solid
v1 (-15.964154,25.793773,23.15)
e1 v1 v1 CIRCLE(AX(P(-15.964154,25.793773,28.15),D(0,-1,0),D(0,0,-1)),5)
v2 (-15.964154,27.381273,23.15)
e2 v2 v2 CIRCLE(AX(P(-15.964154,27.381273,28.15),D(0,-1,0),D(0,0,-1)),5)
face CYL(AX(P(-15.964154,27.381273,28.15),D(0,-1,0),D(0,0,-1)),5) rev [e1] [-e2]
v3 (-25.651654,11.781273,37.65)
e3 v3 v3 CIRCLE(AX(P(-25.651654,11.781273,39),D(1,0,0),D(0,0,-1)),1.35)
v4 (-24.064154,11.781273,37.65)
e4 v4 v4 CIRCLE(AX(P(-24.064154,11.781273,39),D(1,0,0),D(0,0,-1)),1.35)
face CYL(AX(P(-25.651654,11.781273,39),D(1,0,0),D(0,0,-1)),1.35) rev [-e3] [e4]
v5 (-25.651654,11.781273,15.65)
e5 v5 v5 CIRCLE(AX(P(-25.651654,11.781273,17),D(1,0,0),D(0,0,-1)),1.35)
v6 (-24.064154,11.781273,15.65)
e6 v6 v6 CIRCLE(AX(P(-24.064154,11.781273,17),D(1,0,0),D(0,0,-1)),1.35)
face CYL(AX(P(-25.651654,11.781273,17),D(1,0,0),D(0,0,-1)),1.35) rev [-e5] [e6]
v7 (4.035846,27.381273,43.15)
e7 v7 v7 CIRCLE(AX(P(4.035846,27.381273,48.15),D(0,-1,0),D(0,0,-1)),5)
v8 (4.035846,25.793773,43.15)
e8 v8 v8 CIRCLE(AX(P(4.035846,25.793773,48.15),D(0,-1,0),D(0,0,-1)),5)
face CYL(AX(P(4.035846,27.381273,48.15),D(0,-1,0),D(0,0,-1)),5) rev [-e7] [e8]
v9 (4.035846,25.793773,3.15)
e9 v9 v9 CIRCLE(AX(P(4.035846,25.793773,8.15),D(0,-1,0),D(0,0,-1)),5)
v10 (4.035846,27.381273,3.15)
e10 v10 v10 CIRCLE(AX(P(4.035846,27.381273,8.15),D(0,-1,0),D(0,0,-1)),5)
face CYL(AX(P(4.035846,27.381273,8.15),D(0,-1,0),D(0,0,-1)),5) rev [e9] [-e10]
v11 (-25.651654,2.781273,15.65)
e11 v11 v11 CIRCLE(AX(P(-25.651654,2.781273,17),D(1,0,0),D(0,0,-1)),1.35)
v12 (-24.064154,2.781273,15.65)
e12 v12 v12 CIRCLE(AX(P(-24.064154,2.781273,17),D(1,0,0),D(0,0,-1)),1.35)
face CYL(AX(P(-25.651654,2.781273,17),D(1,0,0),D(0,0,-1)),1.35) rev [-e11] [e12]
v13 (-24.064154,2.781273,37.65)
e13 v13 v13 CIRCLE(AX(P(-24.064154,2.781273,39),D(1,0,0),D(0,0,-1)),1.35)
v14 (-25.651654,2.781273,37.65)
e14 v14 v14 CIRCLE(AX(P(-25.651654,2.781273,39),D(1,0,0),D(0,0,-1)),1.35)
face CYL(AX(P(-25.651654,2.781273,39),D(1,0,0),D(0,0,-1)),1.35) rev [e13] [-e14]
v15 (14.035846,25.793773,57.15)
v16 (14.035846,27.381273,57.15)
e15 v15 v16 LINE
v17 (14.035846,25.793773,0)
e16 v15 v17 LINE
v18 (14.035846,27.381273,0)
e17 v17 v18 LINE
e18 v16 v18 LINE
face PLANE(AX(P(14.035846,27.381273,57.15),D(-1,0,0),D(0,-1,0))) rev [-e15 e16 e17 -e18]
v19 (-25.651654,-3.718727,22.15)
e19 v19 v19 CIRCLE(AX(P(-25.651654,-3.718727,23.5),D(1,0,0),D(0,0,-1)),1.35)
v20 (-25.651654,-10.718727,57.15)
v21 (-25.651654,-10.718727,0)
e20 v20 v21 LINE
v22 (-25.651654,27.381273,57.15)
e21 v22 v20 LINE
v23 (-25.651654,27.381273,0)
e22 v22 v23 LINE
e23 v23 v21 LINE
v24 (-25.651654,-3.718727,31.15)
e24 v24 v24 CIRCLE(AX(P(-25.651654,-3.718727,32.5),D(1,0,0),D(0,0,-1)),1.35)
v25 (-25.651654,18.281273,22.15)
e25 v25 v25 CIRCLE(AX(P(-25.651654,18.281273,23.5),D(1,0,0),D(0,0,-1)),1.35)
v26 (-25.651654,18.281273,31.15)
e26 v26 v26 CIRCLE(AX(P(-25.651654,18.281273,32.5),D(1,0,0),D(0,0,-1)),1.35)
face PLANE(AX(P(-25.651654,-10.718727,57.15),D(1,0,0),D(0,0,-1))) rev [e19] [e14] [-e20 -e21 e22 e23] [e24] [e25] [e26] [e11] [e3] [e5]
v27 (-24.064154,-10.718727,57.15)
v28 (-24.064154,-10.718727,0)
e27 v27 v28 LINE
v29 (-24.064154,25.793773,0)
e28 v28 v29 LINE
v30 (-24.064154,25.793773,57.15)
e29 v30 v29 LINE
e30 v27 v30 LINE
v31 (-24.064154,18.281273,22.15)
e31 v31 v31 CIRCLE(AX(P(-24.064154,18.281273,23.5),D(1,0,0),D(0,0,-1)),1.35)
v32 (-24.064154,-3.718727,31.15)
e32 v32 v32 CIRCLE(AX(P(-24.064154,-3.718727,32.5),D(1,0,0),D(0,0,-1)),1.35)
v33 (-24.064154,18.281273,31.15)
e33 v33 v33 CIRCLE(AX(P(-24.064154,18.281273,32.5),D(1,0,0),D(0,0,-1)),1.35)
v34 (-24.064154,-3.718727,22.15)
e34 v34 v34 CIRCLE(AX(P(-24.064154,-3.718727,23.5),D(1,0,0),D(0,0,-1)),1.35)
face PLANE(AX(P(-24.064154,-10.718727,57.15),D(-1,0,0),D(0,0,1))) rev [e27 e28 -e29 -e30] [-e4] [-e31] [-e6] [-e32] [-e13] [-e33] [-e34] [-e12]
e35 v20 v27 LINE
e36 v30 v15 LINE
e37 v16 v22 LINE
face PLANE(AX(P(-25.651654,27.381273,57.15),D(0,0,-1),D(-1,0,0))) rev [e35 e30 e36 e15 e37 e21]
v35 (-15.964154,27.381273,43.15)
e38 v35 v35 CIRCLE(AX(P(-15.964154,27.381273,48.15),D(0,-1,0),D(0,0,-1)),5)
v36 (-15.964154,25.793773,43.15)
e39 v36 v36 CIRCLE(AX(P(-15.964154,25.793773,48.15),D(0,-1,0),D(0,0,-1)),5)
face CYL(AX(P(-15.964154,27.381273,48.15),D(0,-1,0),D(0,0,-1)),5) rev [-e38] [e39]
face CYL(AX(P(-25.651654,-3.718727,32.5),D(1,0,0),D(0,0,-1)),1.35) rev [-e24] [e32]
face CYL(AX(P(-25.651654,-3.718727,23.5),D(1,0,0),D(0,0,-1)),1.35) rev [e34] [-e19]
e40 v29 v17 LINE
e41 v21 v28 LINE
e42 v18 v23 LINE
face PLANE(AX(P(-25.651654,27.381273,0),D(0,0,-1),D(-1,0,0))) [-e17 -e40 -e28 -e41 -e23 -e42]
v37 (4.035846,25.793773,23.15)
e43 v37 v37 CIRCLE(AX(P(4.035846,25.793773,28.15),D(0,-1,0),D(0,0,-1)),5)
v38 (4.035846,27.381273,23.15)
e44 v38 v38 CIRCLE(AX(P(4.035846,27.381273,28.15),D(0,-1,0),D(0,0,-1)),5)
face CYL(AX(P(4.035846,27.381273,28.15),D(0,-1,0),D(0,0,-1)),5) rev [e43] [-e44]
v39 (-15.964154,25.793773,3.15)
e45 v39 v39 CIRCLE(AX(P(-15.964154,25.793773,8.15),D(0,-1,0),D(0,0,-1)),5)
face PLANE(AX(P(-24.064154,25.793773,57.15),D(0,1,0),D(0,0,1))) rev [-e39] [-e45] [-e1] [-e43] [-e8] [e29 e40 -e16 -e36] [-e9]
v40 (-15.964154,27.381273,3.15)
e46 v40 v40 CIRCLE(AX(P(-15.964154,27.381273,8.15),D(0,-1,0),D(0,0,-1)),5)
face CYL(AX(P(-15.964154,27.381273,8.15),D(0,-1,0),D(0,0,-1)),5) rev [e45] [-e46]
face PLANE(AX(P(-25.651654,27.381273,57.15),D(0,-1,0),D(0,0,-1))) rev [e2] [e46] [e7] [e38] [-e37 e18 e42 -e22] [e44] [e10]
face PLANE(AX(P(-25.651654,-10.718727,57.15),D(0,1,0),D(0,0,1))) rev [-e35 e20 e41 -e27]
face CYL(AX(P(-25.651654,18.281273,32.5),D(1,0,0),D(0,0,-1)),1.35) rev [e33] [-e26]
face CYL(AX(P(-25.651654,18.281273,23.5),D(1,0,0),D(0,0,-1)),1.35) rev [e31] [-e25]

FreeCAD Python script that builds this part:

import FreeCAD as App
import Part
import Sketcher

V = App.Vector
Q = App.Units.Quantity


def add_polygon(sketch, points):
    """Adds a closed chain of lines whose ends are joined by coincident constraints."""
    first, n = sketch.GeometryCount, len(points)
    for a, b in zip(points, points[1:] + points[:1]):
        sketch.addGeometry(Part.LineSegment(App.Vector(*a, 0), App.Vector(*b, 0)), False)
    for i in range(n):
        sketch.addConstraint(Sketcher.Constraint("Coincident", first + i, 2, first + (i + 1) % n, 1))

doc = App.newDocument("Part")
body = doc.addObject("PartDesign::Body", "Body")

# Sketch on XY plane
sketch1 = doc.addObject("Sketcher::SketchObject", "Sketch")
body.addObject(sketch1)
sketch1.AttachmentSupport = (doc.XY_Plane, [""])
sketch1.MapMode = "FlatFace"
add_polygon(sketch1, [(-25.651654, -10.718727), (-24.064154, -10.718727), (-24.064154, 25.793773), (14.035846, 25.793773), (14.035846, 27.381273), (-25.651654, 27.381273)])  # lines 0-5
sketch1.addConstraint([
    Sketcher.Constraint("Horizontal", 0),
    Sketcher.Constraint("Vertical", 1),
    Sketcher.Constraint("Horizontal", 2),
    Sketcher.Constraint("Vertical", 3),
    Sketcher.Constraint("Horizontal", 4),
    Sketcher.Constraint("Vertical", 5),
    Sketcher.Constraint("Equal", 0, 3),
    Sketcher.Constraint("Equal", 2, 5),
    Sketcher.Constraint("DistanceX", 2, 1, 2, 2, Q("1.5 in")),
    Sketcher.Constraint("DistanceX", 0, 1, 0, 2, Q("0.0625 in")),
    Sketcher.Constraint("DistanceX", 0, 2, -1, 1, 24.064154),
    Sketcher.Constraint("DistanceY", 0, 2, -1, 1, 10.718727),
])
pad1 = doc.addObject("PartDesign::Pad", "Pad")
body.addObject(pad1)
pad1.Profile = sketch1
pad1.Length = Q("2.25 in")

# Sketch on YZ plane
sketch2 = doc.addObject("Sketcher::SketchObject", "Sketch001")
body.addObject(sketch2)
sketch2.AttachmentSupport = (doc.YZ_Plane, [""])
sketch2.MapMode = "FlatFace"
sketch2.AttachmentOffset = App.Placement(V(0, 0, -24.064154), App.Rotation())
sketch2.addGeometry([
    Part.Circle(V(18.281273, 32.5, 0), V(0, 0, 1), 1.35),  # 0
    Part.Circle(V(18.281273, 23.5, 0), V(0, 0, 1), 1.35),  # 1
    Part.Circle(V(11.781273, 17, 0), V(0, 0, 1), 1.35),  # 2
    Part.Circle(V(2.781273, 17, 0), V(0, 0, 1), 1.35),  # 3
    Part.Circle(V(-3.718727, 23.5, 0), V(0, 0, 1), 1.35),  # 4
    Part.Circle(V(-3.718727, 32.5, 0), V(0, 0, 1), 1.35),  # 5
    Part.Circle(V(2.781273, 39, 0), V(0, 0, 1), 1.35),  # 6
    Part.Circle(V(11.781273, 39, 0), V(0, 0, 1), 1.35),  # 7
], False)
sketch2.addConstraint([
    Sketcher.Constraint("Equal", 0, 1),
    Sketcher.Constraint("Equal", 1, 2),
    Sketcher.Constraint("Equal", 2, 3),
    Sketcher.Constraint("Equal", 3, 4),
    Sketcher.Constraint("Equal", 4, 5),
    Sketcher.Constraint("Equal", 5, 6),
    Sketcher.Constraint("Equal", 6, 7),
    Sketcher.Constraint("Horizontal", 2, 3, 3, 3),
    Sketcher.Constraint("Horizontal", 1, 3, 4, 3),
    Sketcher.Constraint("Horizontal", 0, 3, 5, 3),
    Sketcher.Constraint("Horizontal", 6, 3, 7, 3),
    Sketcher.Constraint("Vertical", 0, 3, 1, 3),
    Sketcher.Constraint("Vertical", 4, 3, 5, 3),
    Sketcher.Constraint("Vertical", 3, 3, 6, 3),
    Sketcher.Constraint("Vertical", 2, 3, 7, 3),
    Sketcher.Constraint("Diameter", 0, 2.7),
    Sketcher.Constraint("DistanceY", -1, 1, 0, 3, 32.5),
    Sketcher.Constraint("DistanceY", -1, 1, 1, 3, 23.5),
    Sketcher.Constraint("DistanceY", -1, 1, 2, 3, 17.0),
    Sketcher.Constraint("DistanceY", -1, 1, 6, 3, 39.0),
    Sketcher.Constraint("DistanceX", 2, 3, 1, 3, 6.5),
    Sketcher.Constraint("DistanceX", 3, 3, 2, 3, 9.0),
    Sketcher.Constraint("DistanceX", 4, 3, 3, 3, 6.5),
    Sketcher.Constraint("DistanceX", -1, 1, 0, 3, 18.281273),
])
pocket1 = doc.addObject("PartDesign::Pocket", "Pocket")
body.addObject(pocket1)
pocket1.Profile = sketch2
pocket1.Type = "ThroughAll"

# Sketch on XZ plane
sketch3 = doc.addObject("Sketcher::SketchObject", "Sketch002")
body.addObject(sketch3)
sketch3.AttachmentSupport = (doc.XZ_Plane, [""])
sketch3.MapMode = "FlatFace"
sketch3.AttachmentOffset = App.Placement(V(0, 0, -25.793773), App.Rotation())
sketch3.addGeometry([
    Part.Circle(V(4.035846, 48.15, 0), V(0, 0, 1), 5),  # 0
    Part.Circle(V(4.035846, 28.15, 0), V(0, 0, 1), 5),  # 1
    Part.Circle(V(4.035846, 8.15, 0), V(0, 0, 1), 5),  # 2
    Part.Circle(V(-15.964154, 48.15, 0), V(0, 0, 1), 5),  # 3
    Part.Circle(V(-15.964154, 28.15, 0), V(0, 0, 1), 5),  # 4
    Part.Circle(V(-15.964154, 8.15, 0), V(0, 0, 1), 5),  # 5
], False)
sketch3.addConstraint([
    Sketcher.Constraint("Equal", 0, 1),
    Sketcher.Constraint("Equal", 1, 2),
    Sketcher.Constraint("Equal", 2, 3),
    Sketcher.Constraint("Equal", 3, 4),
    Sketcher.Constraint("Equal", 4, 5),
    Sketcher.Constraint("Horizontal", 0, 3, 3, 3),
    Sketcher.Constraint("Horizontal", 1, 3, 4, 3),
    Sketcher.Constraint("Horizontal", 2, 3, 5, 3),
    Sketcher.Constraint("Vertical", 0, 3, 1, 3),
    Sketcher.Constraint("Vertical", 1, 3, 2, 3),
    Sketcher.Constraint("Vertical", 3, 3, 4, 3),
    Sketcher.Constraint("Vertical", 4, 3, 5, 3),
    Sketcher.Constraint("Diameter", 0, 10.0),
    Sketcher.Constraint("DistanceY", -1, 1, 0, 3, 48.15),
    Sketcher.Constraint("DistanceY", -1, 1, 1, 3, 28.15),
    Sketcher.Constraint("DistanceY", -1, 1, 2, 3, 8.15),
    Sketcher.Constraint("DistanceX", 3, 3, 0, 3, 20.0),
    Sketcher.Constraint("DistanceX", -1, 1, 0, 3, 4.035846),
])
pocket2 = doc.addObject("PartDesign::Pocket", "Pocket001")
body.addObject(pocket2)
pocket2.Profile = sketch3
pocket2.Type = "ThroughAll"

doc.recompute()
